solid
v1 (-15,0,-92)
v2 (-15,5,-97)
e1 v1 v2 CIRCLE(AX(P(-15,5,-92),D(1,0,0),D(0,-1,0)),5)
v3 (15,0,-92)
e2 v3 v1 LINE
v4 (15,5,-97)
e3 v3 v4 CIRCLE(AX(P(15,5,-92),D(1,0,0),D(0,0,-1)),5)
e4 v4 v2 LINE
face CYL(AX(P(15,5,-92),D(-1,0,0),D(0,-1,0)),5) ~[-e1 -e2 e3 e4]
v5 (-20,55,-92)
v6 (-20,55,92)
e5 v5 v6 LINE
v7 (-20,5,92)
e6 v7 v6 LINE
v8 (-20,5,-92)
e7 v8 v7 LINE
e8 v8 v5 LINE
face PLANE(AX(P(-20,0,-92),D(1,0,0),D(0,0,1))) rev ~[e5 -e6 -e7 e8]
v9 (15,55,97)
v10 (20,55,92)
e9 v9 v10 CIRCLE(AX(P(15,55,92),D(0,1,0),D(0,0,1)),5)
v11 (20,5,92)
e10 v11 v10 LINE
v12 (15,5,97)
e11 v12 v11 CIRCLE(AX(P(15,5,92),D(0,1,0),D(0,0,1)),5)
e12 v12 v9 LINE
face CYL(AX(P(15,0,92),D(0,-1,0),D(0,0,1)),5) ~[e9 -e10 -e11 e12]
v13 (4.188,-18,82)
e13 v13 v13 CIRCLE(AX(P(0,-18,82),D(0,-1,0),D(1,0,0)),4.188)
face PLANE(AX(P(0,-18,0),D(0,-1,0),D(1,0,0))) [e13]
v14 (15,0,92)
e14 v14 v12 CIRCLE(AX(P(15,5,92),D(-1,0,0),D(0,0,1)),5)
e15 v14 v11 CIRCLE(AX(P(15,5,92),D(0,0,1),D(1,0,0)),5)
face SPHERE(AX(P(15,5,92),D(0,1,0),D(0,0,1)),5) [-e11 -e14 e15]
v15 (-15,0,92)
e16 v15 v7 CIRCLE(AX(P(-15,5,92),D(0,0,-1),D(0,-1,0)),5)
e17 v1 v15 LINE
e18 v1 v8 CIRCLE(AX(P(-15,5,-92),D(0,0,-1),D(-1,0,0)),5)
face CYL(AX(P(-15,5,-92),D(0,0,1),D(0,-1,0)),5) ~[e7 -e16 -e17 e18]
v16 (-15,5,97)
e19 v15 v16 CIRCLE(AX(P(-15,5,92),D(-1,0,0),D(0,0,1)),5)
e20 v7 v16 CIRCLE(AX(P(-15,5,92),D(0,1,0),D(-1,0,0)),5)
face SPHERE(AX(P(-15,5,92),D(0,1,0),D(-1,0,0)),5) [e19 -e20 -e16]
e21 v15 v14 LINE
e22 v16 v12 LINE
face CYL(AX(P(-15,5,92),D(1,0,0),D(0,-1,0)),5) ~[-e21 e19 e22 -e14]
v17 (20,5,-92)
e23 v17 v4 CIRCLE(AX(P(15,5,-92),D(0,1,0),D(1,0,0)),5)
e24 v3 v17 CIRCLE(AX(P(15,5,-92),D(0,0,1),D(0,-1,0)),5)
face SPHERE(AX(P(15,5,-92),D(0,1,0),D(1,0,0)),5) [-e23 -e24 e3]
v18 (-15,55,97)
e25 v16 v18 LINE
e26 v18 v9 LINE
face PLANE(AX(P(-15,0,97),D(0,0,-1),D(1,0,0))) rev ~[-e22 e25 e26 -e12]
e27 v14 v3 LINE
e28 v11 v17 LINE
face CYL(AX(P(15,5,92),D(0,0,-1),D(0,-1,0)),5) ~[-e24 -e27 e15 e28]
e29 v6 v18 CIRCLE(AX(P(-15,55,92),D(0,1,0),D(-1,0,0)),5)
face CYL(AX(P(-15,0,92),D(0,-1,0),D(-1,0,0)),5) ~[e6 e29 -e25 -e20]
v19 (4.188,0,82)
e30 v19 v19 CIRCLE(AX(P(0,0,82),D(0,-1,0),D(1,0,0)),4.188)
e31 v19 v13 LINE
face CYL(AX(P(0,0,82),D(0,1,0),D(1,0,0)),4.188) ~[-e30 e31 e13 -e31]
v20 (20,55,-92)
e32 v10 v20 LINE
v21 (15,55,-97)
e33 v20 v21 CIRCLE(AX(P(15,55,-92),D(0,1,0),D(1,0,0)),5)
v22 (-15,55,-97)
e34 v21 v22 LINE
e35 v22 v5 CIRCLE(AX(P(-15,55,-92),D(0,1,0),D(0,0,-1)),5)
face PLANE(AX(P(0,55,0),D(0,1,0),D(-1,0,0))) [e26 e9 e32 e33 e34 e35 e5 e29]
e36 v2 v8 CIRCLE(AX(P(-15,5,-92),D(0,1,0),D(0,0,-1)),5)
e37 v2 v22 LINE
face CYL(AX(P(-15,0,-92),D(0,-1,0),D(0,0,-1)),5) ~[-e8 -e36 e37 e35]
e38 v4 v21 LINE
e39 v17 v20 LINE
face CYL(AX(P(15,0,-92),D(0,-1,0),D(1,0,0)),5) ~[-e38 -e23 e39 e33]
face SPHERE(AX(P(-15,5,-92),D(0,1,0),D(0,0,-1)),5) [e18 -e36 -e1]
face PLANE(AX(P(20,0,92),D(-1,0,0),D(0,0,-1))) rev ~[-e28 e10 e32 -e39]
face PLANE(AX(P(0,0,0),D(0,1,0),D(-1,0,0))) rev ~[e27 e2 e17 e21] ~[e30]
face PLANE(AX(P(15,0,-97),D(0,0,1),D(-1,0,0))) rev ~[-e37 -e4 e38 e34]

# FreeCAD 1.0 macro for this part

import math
import FreeCAD as App
import Part
import Sketcher


def edges_at(feature, points):
    """Names of the edges that pass closest to the given points."""
    edges = feature.Shape.Edges
    near = lambda p: min(range(len(edges)), key=lambda i: edges[i].distToShape(Part.Vertex(*p))[0])
    return sorted({f"Edge{near(p) + 1}" for p in points})

doc = App.newDocument("Part")
body = doc.addObject("PartDesign::Body", "Body")

sketch1 = body.newObject("Sketcher::SketchObject", "Sketch")
sketch1.AttachmentSupport = (doc.getObject("XZ_Plane"), [""])
sketch1.MapMode = "FlatFace"
sketch1.addGeometry([
    Part.ArcOfCircle(Part.Circle(App.Vector(15, -92, 0), App.Vector(0, 0, 1), 5), math.radians(-90), math.radians(0)),
    Part.LineSegment(App.Vector(15, -97, 0), App.Vector(-15, -97, 0)),
    Part.ArcOfCircle(Part.Circle(App.Vector(-15, -92, 0), App.Vector(0, 0, 1), 5), math.radians(180), math.radians(270)),
    Part.LineSegment(App.Vector(-20, -92, 0), App.Vector(-20, 92, 0)),
    Part.ArcOfCircle(Part.Circle(App.Vector(-15, 92, 0), App.Vector(0, 0, 1), 5), math.radians(90), math.radians(180)),
    Part.LineSegment(App.Vector(-15, 97, 0), App.Vector(15, 97, 0)),
    Part.ArcOfCircle(Part.Circle(App.Vector(15, 92, 0), App.Vector(0, 0, 1), 5), math.radians(0), math.radians(90)),
    Part.LineSegment(App.Vector(20, 92, 0), App.Vector(20, -92, 0)),
], False)
sketch1.addConstraint([
    Sketcher.Constraint("Tangent", 0, 1, 1, 1),
    Sketcher.Constraint("Tangent", 1, 2, 2, 2),
    Sketcher.Constraint("Tangent", 2, 1, 3, 1),
    Sketcher.Constraint("Tangent", 3, 2, 4, 2),
    Sketcher.Constraint("Tangent", 4, 1, 5, 1),
    Sketcher.Constraint("Tangent", 5, 2, 6, 2),
    Sketcher.Constraint("Tangent", 6, 1, 7, 1),
    Sketcher.Constraint("Tangent", 7, 2, 0, 2),
    Sketcher.Constraint("Horizontal", 1),
    Sketcher.Constraint("Vertical", 3),
    Sketcher.Constraint("Horizontal", 5),
    Sketcher.Constraint("Vertical", 7),
    Sketcher.Constraint("Equal", 0, 2),
    Sketcher.Constraint("Equal", 2, 4),
    Sketcher.Constraint("Equal", 4, 6),
    Sketcher.Constraint("Symmetric", 0, 3, 4, 3, -1, 1),
    Sketcher.Constraint("Radius", 0, 5.0),
    Sketcher.Constraint("DistanceX", 3, 2, 6, 1, 40.0),
    Sketcher.Constraint("DistanceY", 3, 1, 3, 2, 184.0),
])
pad1 = body.newObject("PartDesign::Pad", "Pad")
pad1.Profile = sketch1
pad1.Length = 55
pad1.Reversed = True

sketch2 = body.newObject("Sketcher::SketchObject", "Sketch001")
sketch2.AttachmentSupport = (doc.getObject("XZ_Plane"), [""])
sketch2.MapMode = "FlatFace"
sketch2.addGeometry(Part.Circle(App.Vector(0, 82, 0), App.Vector(0, 0, 1), 4.2), False)
sketch2.addConstraint([
    Sketcher.Constraint("PointOnObject", 0, 3, -2),
    Sketcher.Constraint("Diameter", 0, 8.376),
    Sketcher.Constraint("DistanceY", -1, 1, 0, 3, 82.0),
])
pad2 = body.newObject("PartDesign::Pad", "Pad001")
pad2.Profile = sketch2
pad2.Length = 18
doc.recompute()

fillet = body.newObject("PartDesign::Fillet", "Fillet")
fillet.Base = (pad2, edges_at(pad2, [
    (18.535, 0, 95.535),
    (20, 0, 0),
    (18.535, 0, -95.535),
    (0, 0, -97),
    (-18.535, 0, -95.535),
    (-20, 0, 0),
    (-18.535, 0, 95.535),
    (0, 0, 97),
]))
fillet.Radius = 5

doc.recompute()
